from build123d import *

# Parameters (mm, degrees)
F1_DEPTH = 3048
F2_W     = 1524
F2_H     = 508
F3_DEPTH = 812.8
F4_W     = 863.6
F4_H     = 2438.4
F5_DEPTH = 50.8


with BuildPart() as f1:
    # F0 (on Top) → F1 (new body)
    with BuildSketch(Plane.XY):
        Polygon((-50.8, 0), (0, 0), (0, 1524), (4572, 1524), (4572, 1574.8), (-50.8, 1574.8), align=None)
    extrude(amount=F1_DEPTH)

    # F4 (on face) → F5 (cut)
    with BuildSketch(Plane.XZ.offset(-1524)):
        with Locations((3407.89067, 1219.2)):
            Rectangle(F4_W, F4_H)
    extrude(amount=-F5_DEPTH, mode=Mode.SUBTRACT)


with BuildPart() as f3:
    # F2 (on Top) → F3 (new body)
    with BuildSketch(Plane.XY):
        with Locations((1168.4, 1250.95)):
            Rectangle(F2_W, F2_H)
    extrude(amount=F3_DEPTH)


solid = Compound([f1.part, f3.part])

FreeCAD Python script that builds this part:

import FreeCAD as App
import Part
import Sketcher

V = App.Vector
Q = App.Units.Quantity


def add_polygon(sketch, points):
    """Adds a closed chain of lines whose ends are joined by coincident constraints."""
    first, n = sketch.GeometryCount, len(points)
    for a, b in zip(points, points[1:] + points[:1]):
        sketch.addGeometry(Part.LineSegment(App.Vector(*a, 0), App.Vector(*b, 0)), False)
    for i in range(n):
        sketch.addConstraint(Sketcher.Constraint("Coincident", first + i, 2, first + (i + 1) % n, 1))

doc = App.newDocument("Part")
body = doc.addObject("PartDesign::Body", "Body")

# Sketch on XY plane
sketch1 = body.newObject("Sketcher::SketchObject", "Sketch")
sketch1.AttachmentSupport = (doc.getObject("XY_Plane"), [""])
sketch1.MapMode = "FlatFace"
add_polygon(sketch1, [(-51, 0), (0, 0), (0, 1524), (4572, 1524), (4572, 1575), (-51, 1575)])  # lines 0-5
sketch1.addConstraint([
    Sketcher.Constraint("Horizontal", 0),
    Sketcher.Constraint("Vertical", 1),
    Sketcher.Constraint("Horizontal", 2),
    Sketcher.Constraint("Vertical", 3),
    Sketcher.Constraint("Horizontal", 4),
    Sketcher.Constraint("Vertical", 5),
    Sketcher.Constraint("Coincident", 0, 2, -1, 1),
    Sketcher.Constraint("Equal", 0, 3),
    Sketcher.Constraint("DistanceX", 0, 1, 0, 2, Q("2 in")),
    Sketcher.Constraint("DistanceX", 2, 1, 2, 2, Q("180 in")),
    Sketcher.Constraint("DistanceY", 1, 1, 1, 2, Q("60 in")),
])
pad1 = body.newObject("PartDesign::Pad", "Pad")
pad1.Profile = sketch1
pad1.Length = Q("120 in")

# Sketch on XZ plane
sketch2 = body.newObject("Sketcher::SketchObject", "Sketch001")
sketch2.AttachmentSupport = (doc.getObject("XZ_Plane"), [""])
sketch2.MapMode = "FlatFace"
sketch2.AttachmentOffset = App.Placement(V(0, 0, -60 * 25.4), App.Rotation())
add_polygon(sketch2, [(2976, 2438), (2976, 0), (3840, 0), (3840, 2438)])  # lines 0-3
sketch2.addConstraint([
    Sketcher.Constraint("Vertical", 0),
    Sketcher.Constraint("Horizontal", 1),
    Sketcher.Constraint("Vertical", 2),
    Sketcher.Constraint("Horizontal", 3),
    Sketcher.Constraint("PointOnObject", 0, 2, -1),
    Sketcher.Constraint("DistanceX", 1, 1, 1, 2, Q("34 in")),
    Sketcher.Constraint("DistanceY", 0, 2, 0, 1, Q("96 in")),
    Sketcher.Constraint("DistanceX", -1, 1, 0, 2, Q("2976.09067 mm")),
])
pocket1 = body.newObject("PartDesign::Pocket", "Pocket")
pocket1.Profile = sketch2
pocket1.Length = Q("2 in")
body2 = doc.addObject("PartDesign::Body", "Body001")

# Sketch on XY plane
sketch3 = body2.newObject("Sketcher::SketchObject", "Sketch002")
sketch3.AttachmentSupport = (doc.getObject("XY_Plane001"), [""])
sketch3.MapMode = "FlatFace"
add_polygon(sketch3, [(406, 1505), (406, 997), (1930, 997), (1930, 1505)])  # lines 0-3
sketch3.addConstraint([
    Sketcher.Constraint("Vertical", 0),
    Sketcher.Constraint("Horizontal", 1),
    Sketcher.Constraint("Vertical", 2),
    Sketcher.Constraint("Horizontal", 3),
    Sketcher.Constraint("DistanceX", 1, 1, 1, 2, Q("60 in")),
    Sketcher.Constraint("DistanceY", 0, 2, 0, 1, Q("20 in")),
    Sketcher.Constraint("DistanceX", -1, 1, 0, 2, Q("16 in")),
    Sketcher.Constraint("DistanceY", -1, 1, 0, 2, Q("39.25 in")),
])
pad2 = body2.newObject("PartDesign::Pad", "Pad001")
pad2.Profile = sketch3
pad2.Length = Q("32 in")

doc.recompute()
